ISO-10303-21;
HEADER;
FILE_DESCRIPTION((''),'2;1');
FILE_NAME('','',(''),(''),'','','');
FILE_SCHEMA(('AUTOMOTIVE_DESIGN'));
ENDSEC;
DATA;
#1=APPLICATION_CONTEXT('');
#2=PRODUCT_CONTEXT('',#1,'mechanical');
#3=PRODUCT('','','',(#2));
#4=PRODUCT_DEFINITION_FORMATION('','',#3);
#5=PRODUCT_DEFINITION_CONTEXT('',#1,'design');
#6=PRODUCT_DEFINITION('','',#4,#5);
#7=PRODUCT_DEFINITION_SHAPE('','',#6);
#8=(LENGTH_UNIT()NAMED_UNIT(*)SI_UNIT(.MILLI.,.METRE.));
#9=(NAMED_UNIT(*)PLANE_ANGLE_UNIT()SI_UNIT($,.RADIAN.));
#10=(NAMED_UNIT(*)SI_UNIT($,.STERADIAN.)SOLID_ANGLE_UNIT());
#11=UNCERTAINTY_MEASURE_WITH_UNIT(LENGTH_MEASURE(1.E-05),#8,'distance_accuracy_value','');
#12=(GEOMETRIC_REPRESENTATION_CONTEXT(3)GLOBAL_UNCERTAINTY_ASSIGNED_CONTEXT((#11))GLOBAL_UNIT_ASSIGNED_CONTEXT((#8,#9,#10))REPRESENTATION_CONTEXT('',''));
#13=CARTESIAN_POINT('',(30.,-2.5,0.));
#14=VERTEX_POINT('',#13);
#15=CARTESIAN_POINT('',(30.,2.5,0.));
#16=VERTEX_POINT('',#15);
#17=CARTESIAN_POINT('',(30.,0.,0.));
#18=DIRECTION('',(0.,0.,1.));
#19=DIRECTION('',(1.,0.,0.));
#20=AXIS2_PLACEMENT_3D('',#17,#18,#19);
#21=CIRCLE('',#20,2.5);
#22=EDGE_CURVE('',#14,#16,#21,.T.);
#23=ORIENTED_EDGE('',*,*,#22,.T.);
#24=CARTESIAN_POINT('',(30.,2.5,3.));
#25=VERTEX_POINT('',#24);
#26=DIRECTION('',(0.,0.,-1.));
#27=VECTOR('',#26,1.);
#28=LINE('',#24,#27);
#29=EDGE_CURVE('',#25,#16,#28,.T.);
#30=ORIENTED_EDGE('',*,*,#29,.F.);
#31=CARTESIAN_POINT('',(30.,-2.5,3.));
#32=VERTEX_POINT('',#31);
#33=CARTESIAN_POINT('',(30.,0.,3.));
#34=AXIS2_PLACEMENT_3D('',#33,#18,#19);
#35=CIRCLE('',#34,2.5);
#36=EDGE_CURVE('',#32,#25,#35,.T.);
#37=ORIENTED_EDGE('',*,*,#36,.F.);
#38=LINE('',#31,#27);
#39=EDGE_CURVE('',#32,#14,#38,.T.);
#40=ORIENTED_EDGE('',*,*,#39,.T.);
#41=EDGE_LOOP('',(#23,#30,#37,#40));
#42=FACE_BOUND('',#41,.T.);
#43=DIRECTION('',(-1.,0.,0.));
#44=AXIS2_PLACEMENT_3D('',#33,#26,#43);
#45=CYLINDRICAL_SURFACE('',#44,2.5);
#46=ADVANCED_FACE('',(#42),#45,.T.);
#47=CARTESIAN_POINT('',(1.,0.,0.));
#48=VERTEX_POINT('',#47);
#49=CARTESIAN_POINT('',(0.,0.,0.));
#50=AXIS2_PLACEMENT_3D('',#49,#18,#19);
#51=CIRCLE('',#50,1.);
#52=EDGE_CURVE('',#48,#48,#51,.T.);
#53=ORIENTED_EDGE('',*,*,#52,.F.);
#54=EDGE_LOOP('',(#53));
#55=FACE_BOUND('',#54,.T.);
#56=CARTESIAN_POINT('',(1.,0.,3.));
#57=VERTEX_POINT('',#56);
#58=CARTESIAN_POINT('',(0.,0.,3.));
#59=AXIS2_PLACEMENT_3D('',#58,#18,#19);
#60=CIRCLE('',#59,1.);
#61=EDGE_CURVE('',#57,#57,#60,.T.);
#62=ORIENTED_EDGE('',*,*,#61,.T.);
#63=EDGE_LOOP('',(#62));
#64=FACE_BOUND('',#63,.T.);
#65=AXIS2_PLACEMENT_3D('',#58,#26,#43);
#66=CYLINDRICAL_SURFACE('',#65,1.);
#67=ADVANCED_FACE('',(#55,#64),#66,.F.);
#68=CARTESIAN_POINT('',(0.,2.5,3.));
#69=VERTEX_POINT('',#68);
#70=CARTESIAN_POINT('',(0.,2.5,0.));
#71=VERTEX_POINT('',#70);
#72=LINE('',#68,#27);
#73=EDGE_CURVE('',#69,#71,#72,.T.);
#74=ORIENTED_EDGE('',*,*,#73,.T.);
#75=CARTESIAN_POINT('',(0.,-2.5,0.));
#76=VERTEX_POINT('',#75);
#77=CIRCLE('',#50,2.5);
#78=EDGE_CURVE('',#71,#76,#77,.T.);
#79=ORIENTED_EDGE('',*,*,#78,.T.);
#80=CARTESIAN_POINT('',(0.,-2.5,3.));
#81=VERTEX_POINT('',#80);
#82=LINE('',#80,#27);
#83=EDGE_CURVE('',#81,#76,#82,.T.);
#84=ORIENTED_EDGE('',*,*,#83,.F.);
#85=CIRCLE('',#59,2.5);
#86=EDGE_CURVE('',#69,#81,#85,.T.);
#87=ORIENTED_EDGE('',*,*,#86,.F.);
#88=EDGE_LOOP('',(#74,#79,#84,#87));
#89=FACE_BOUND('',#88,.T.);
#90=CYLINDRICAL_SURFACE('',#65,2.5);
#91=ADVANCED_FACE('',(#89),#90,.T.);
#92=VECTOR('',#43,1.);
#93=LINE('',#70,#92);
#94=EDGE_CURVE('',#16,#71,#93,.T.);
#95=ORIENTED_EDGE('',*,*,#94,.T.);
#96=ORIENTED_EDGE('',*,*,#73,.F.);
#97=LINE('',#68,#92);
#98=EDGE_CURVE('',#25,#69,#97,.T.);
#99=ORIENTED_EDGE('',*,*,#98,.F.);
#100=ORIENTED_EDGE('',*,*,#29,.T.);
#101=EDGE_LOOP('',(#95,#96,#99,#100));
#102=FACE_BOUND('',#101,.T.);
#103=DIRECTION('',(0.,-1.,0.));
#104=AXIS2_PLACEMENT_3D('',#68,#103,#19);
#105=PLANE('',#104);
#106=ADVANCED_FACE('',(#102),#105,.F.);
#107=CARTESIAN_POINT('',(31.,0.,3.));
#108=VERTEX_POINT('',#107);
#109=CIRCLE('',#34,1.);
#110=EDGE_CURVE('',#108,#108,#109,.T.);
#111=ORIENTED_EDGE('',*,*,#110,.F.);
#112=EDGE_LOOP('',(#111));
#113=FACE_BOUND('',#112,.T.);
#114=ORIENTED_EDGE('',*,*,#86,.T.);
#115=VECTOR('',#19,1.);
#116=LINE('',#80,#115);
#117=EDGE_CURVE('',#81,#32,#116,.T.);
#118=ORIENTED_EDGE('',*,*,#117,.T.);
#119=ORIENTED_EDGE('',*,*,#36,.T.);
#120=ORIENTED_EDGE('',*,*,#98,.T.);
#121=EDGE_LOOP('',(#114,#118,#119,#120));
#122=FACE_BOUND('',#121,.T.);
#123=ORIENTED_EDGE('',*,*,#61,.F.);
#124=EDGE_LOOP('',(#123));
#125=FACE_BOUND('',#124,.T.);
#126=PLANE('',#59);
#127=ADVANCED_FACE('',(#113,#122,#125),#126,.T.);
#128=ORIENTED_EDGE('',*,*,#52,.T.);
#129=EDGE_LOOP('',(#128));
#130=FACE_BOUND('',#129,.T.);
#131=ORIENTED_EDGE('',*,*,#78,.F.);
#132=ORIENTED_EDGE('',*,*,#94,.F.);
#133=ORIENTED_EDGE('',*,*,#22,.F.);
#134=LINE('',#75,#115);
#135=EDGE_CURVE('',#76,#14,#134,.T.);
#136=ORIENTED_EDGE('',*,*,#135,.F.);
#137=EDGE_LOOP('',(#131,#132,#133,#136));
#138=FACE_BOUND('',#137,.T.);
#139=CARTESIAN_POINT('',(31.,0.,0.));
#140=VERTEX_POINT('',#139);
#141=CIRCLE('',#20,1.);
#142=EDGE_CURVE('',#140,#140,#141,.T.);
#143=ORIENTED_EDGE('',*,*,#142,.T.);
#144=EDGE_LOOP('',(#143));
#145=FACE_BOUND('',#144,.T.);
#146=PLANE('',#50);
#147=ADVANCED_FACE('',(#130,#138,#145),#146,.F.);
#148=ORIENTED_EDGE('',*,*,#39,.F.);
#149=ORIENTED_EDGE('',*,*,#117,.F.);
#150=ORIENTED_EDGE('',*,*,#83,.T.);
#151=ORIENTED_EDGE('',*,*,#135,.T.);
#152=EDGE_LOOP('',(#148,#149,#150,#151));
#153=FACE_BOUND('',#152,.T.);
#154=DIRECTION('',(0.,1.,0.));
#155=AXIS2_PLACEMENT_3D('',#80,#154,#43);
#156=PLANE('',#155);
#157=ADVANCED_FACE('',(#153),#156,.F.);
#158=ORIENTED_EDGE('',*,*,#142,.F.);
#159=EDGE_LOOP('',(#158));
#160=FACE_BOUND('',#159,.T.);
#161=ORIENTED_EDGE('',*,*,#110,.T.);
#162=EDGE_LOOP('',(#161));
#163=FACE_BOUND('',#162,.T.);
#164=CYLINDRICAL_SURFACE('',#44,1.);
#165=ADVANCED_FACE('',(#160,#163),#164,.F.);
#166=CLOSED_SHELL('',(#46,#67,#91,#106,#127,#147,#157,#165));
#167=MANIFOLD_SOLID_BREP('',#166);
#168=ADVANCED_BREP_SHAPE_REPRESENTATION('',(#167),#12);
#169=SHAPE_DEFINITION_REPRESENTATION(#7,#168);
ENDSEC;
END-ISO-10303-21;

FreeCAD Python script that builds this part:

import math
import FreeCAD as App
import Part
import Sketcher

V = App.Vector

doc = App.newDocument("Part")
body = doc.addObject("PartDesign::Body", "Body")

# Sketch on XY plane
sketch1 = body.newObject("Sketcher::SketchObject", "Sketch")
sketch1.AttachmentSupport = (doc.getObject("XY_Plane"), [""])
sketch1.MapMode = "FlatFace"
sketch1.addGeometry(Part.LineSegment(V(30, 2.5, 0), V(0, 2.5, 0)), False)
sketch1.addGeometry(Part.ArcOfCircle(Part.Circle(V(0, 0, 0), V(0, 0, 1), 2.5), math.radians(90), math.radians(270)), False)
sketch1.addGeometry(Part.LineSegment(V(0, -2.5, 0), V(30, -2.5, 0)), False)
sketch1.addGeometry(Part.ArcOfCircle(Part.Circle(V(30, 0, 0), V(0, 0, 1), 2.5), math.radians(-90), math.radians(90)), False)
sketch1.addGeometry(Part.Circle(V(30, 0, 0), V(0, 0, 1), 1), False)
sketch1.addGeometry(Part.Circle(V(0, 0, 0), V(0, 0, 1), 1), False)
sketch1.addConstraint(Sketcher.Constraint("Tangent", 0, 2, 1, 1))
sketch1.addConstraint(Sketcher.Constraint("Tangent", 1, 2, 2, 1))
sketch1.addConstraint(Sketcher.Constraint("Tangent", 2, 2, 3, 1))
sketch1.addConstraint(Sketcher.Constraint("Tangent", 3, 2, 0, 1))
sketch1.addConstraint(Sketcher.Constraint("Horizontal", 0))
sketch1.addConstraint(Sketcher.Constraint("Horizontal", 2))
sketch1.addConstraint(Sketcher.Constraint("Coincident", 1, 3, -1, 1))
sketch1.addConstraint(Sketcher.Constraint("Coincident", 5, 3, -1, 1))
sketch1.addConstraint(Sketcher.Constraint("Coincident", 4, 3, 3, 3))
sketch1.addConstraint(Sketcher.Constraint("Equal", 4, 5))
sketch1.addConstraint(Sketcher.Constraint("Diameter", 4, 2.0))
sketch1.addConstraint(Sketcher.Constraint("Radius", 1, 2.5))
sketch1.addConstraint(Sketcher.Constraint("DistanceX", 0, 2, 0, 1, 30.0))
pad1 = body.newObject("PartDesign::Pad", "Pad")
pad1.Profile = sketch1
pad1.Length = 3

doc.recompute()
